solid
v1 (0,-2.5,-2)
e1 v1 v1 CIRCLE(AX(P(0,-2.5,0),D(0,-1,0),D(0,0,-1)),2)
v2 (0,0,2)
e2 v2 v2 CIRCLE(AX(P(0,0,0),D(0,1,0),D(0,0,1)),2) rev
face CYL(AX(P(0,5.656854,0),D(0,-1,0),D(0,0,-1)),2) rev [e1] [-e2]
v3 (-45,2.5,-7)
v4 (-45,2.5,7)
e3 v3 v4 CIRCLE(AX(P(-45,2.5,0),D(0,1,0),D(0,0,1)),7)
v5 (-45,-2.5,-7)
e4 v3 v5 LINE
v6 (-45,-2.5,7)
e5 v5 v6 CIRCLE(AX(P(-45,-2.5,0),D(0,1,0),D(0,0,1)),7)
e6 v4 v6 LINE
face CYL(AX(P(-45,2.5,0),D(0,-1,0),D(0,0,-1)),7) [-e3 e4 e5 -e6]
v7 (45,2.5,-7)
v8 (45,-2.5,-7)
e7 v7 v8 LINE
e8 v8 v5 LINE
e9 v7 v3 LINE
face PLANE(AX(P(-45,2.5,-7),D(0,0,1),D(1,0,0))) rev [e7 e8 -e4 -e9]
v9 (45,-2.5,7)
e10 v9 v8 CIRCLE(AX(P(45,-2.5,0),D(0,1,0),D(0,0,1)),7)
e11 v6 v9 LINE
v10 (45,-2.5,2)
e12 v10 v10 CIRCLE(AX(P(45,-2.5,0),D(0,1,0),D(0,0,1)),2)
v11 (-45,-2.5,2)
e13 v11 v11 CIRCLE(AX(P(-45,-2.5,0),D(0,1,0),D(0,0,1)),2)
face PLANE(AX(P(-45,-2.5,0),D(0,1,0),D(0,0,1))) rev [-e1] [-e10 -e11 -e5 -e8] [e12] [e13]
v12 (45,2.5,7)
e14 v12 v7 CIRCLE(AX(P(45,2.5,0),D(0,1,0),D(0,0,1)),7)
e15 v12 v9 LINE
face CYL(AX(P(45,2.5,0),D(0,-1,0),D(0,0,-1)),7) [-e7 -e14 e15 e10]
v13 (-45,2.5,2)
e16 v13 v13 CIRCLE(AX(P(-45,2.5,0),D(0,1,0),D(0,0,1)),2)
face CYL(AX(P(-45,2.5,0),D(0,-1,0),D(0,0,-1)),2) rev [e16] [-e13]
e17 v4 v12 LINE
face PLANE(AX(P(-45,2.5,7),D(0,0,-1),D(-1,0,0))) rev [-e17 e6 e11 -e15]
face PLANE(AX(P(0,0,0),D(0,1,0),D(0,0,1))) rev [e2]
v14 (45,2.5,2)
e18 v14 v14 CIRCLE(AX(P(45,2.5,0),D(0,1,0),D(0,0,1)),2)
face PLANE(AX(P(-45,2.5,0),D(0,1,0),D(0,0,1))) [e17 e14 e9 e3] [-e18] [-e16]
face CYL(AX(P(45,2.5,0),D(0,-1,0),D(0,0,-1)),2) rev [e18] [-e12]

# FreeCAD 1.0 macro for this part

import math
import FreeCAD as App
import Part
import Sketcher
Q = App.Units.Quantity

doc = App.newDocument("Part")
body = doc.addObject("PartDesign::Body", "Body")

sketch1 = doc.addObject("Sketcher::SketchObject", "Sketch")
body.addObject(sketch1)
sketch1.AttachmentSupport = (doc.XZ_Plane, [""])
sketch1.MapMode = "FlatFace"
sketch1.addGeometry([
    Part.LineSegment(App.Vector(45, -7, 0), App.Vector(-45, -7, 0)),
    Part.ArcOfCircle(Part.Circle(App.Vector(-45, 0, 0), App.Vector(0, 0, 1), 7), math.radians(90), math.radians(270)),
    Part.LineSegment(App.Vector(-45, 7, 0), App.Vector(45, 7, 0)),
    Part.ArcOfCircle(Part.Circle(App.Vector(45, 0, 0), App.Vector(0, 0, 1), 7), math.radians(-90), math.radians(90)),
    Part.Circle(App.Vector(45, 0, 0), App.Vector(0, 0, 1), 2),
    Part.Circle(App.Vector(-45, 0, 0), App.Vector(0, 0, 1), 2),
], False)
sketch1.addConstraint([
    Sketcher.Constraint("Tangent", 0, 2, 1, 2),
    Sketcher.Constraint("Tangent", 1, 1, 2, 1),
    Sketcher.Constraint("Tangent", 2, 2, 3, 2),
    Sketcher.Constraint("Tangent", 3, 1, 0, 1),
    Sketcher.Constraint("Horizontal", 0),
    Sketcher.Constraint("Horizontal", 2),
    Sketcher.Constraint("Coincident", 4, 3, 3, 3),
    Sketcher.Constraint("Coincident", 5, 3, 1, 3),
    Sketcher.Constraint("Equal", 4, 5),
    Sketcher.Constraint("Symmetric", 1, 3, 3, 3, -1, 1),
    Sketcher.Constraint("Diameter", 4, Q("4 mm")),
    Sketcher.Constraint("Radius", 1, Q("7 mm")),
    Sketcher.Constraint("DistanceX", 0, 2, 0, 1, Q("90 mm")),
])
pad1 = doc.addObject("PartDesign::Pad", "Pad")
body.addObject(pad1)
pad1.Profile = sketch1
pad1.Length = 5
pad1.Midplane = True

sketch2 = doc.addObject("Sketcher::SketchObject", "Sketch001")
body.addObject(sketch2)
sketch2.AttachmentSupport = (doc.XZ_Plane, [""])
sketch2.MapMode = "FlatFace"
sketch2.addGeometry(Part.Circle(App.Vector(0, 0, 0), App.Vector(0, 0, 1), 2), False)
sketch2.addConstraint([
    Sketcher.Constraint("Coincident", 0, 3, -1, 1),
    Sketcher.Constraint("Diameter", 0, Q("4 mm")),
])
pocket1 = doc.addObject("PartDesign::Pocket", "Pocket")
body.addObject(pocket1)
pocket1.Profile = sketch2
pocket1.Length = 2.5
pocket1.Reversed = True

doc.recompute()
